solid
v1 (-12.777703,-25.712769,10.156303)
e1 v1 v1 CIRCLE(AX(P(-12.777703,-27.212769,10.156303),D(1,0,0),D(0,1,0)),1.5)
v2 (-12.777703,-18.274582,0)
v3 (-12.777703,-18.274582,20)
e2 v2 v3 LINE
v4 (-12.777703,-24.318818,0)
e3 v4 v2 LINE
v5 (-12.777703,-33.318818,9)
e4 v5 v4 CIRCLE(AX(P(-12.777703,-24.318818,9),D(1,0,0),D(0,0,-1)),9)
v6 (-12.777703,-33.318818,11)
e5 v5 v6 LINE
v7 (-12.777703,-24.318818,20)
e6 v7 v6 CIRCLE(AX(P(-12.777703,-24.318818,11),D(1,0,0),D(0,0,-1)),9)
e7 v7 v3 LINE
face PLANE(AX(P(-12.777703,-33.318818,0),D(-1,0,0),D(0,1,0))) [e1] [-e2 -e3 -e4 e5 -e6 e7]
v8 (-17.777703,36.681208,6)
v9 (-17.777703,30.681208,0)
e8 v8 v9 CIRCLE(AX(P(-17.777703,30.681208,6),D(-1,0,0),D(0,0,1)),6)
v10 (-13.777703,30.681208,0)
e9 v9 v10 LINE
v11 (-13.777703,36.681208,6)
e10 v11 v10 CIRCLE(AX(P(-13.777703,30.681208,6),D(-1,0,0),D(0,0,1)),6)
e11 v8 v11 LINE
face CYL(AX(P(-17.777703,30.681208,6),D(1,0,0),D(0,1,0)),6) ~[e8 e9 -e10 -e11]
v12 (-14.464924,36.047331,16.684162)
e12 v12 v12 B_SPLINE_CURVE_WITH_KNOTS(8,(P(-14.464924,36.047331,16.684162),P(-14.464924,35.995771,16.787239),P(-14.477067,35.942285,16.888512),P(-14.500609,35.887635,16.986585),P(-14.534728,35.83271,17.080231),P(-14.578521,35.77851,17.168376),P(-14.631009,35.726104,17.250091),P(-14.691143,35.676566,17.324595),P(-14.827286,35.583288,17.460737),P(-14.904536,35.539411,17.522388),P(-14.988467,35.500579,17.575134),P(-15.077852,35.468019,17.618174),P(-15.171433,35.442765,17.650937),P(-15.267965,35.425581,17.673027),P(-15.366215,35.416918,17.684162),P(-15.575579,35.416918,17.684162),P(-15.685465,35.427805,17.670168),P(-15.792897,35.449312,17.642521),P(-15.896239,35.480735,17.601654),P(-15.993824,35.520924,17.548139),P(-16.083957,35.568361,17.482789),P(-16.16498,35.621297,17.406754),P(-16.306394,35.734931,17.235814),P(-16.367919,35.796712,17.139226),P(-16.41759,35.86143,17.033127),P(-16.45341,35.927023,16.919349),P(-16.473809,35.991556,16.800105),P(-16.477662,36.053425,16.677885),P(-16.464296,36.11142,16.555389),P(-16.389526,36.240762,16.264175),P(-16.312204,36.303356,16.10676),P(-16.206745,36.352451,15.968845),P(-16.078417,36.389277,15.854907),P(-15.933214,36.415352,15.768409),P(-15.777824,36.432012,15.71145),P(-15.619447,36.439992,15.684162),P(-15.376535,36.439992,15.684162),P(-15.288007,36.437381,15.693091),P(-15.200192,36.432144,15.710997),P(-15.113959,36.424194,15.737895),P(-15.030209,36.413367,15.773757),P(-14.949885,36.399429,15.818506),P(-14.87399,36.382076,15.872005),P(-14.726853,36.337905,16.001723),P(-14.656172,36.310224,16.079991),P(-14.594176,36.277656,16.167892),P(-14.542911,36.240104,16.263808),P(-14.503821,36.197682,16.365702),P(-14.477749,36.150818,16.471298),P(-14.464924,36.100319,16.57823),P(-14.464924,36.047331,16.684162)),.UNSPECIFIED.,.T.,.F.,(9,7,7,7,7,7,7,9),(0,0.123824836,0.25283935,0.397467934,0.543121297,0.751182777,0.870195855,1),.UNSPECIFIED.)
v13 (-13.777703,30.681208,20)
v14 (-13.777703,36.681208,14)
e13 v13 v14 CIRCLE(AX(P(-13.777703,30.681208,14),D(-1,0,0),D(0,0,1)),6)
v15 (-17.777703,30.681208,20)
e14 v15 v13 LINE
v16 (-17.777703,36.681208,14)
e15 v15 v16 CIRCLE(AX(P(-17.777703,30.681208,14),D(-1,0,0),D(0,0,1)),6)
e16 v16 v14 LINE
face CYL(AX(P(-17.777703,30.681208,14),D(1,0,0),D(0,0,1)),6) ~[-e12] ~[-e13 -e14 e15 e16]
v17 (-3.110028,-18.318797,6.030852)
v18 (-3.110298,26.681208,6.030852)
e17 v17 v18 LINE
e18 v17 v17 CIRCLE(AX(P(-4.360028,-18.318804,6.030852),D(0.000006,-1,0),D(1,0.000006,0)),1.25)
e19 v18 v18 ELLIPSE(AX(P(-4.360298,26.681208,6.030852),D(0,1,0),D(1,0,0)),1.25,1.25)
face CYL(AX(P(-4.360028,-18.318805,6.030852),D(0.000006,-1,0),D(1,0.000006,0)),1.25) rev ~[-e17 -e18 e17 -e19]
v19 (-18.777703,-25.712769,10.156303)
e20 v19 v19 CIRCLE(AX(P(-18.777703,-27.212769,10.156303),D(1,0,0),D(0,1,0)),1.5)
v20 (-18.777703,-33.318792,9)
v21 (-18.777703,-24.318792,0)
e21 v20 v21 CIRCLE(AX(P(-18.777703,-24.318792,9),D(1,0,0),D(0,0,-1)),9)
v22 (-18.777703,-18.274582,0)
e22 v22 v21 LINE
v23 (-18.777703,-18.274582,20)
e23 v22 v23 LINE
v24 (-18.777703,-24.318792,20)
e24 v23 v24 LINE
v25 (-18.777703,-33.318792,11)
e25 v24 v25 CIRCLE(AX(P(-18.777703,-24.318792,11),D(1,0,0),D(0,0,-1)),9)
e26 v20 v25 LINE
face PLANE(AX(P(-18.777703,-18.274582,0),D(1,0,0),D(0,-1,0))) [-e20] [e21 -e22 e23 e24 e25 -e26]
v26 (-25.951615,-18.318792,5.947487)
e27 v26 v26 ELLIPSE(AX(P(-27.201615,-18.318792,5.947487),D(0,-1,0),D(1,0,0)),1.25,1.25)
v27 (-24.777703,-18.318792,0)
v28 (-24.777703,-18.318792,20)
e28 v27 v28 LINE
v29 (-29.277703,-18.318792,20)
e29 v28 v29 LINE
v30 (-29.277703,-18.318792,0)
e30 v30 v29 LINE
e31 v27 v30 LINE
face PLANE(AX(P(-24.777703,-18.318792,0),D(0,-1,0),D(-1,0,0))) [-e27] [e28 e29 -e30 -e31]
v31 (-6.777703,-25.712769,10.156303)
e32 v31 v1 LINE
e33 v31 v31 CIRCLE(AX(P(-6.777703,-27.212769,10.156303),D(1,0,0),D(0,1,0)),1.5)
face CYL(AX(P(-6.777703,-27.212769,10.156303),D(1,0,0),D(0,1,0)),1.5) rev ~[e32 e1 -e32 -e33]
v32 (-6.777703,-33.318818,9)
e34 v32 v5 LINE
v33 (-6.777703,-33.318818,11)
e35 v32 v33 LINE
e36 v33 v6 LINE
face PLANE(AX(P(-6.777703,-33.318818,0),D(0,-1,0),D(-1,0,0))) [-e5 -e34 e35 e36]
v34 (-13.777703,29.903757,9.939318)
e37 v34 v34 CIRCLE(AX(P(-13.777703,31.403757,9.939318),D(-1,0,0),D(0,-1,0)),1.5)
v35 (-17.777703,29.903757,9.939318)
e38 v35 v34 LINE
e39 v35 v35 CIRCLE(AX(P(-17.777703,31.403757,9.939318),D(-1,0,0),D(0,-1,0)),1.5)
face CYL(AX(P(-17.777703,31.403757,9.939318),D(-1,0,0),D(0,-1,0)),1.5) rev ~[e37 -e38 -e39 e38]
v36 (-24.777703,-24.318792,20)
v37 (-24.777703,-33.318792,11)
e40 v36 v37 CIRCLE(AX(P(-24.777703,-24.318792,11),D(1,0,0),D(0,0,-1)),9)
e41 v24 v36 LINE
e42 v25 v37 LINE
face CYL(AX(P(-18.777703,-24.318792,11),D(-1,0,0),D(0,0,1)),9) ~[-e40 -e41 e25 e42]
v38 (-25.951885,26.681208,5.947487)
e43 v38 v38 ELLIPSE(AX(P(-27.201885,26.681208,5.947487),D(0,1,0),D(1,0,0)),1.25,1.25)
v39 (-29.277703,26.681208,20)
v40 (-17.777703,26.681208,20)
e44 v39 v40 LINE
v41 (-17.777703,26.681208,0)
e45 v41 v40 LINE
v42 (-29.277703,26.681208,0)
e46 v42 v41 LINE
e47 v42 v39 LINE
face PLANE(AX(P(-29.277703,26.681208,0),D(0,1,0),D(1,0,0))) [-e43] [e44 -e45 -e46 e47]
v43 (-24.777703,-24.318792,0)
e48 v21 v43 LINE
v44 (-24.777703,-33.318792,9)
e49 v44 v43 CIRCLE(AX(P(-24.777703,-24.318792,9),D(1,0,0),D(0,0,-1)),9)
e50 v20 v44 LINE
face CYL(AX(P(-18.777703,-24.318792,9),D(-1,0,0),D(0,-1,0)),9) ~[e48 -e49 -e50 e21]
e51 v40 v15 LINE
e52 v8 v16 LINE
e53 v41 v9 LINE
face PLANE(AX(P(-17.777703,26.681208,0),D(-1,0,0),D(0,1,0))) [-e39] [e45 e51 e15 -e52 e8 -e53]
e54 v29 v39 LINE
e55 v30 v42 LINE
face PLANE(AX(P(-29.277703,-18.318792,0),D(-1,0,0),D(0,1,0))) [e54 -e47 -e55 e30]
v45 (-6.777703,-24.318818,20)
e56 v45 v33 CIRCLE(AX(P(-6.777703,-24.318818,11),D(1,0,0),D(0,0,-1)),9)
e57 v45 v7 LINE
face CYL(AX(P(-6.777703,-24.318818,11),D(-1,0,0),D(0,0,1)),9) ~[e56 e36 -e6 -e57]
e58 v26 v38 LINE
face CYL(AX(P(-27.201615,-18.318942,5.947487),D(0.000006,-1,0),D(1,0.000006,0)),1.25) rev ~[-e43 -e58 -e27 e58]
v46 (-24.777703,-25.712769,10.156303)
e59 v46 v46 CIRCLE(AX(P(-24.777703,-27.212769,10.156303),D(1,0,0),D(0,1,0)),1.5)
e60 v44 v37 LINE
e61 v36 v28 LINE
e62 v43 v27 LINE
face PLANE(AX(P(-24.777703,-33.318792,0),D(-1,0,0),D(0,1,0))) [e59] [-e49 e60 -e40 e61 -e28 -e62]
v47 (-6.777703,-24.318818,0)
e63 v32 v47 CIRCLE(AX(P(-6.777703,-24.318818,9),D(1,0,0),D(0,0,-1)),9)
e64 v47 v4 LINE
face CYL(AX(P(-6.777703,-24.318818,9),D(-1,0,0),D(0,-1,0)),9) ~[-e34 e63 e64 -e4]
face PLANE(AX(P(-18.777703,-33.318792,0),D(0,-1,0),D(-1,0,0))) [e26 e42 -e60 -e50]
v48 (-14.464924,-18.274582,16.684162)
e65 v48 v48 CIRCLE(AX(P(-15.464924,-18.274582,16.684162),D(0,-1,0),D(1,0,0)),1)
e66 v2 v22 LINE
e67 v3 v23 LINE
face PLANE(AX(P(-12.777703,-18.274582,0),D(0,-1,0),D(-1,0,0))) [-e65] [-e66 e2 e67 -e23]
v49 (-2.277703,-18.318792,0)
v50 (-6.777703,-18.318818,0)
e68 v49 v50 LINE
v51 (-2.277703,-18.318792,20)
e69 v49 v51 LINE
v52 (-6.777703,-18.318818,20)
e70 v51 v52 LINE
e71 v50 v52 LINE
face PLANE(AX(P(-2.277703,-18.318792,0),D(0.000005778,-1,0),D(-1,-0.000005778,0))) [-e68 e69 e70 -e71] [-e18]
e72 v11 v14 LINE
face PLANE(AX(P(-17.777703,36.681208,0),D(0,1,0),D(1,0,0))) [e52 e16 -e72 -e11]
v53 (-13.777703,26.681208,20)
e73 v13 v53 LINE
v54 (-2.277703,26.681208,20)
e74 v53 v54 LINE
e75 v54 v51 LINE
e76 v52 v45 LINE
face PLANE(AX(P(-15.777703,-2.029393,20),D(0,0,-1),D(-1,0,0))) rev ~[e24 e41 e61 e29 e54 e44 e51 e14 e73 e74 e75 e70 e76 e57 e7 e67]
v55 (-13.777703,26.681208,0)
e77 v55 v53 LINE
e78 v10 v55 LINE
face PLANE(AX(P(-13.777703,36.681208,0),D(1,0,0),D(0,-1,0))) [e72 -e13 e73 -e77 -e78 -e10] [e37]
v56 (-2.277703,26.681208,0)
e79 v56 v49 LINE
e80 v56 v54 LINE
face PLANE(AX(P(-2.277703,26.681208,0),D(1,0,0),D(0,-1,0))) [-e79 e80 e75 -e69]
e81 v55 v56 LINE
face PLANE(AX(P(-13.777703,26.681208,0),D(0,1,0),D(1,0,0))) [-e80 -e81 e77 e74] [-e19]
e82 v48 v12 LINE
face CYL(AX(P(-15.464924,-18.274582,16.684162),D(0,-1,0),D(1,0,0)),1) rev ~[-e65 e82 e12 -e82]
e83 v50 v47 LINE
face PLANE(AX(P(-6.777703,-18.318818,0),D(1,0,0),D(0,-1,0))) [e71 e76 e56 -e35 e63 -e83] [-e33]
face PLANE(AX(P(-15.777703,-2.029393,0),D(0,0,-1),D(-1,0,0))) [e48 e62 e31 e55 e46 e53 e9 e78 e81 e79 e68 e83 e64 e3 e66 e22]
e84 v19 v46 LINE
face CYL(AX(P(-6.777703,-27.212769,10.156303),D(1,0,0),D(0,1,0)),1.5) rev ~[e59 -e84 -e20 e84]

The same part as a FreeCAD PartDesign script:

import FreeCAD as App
import Part
import Sketcher

V = App.Vector


def edges_at(feature, points):
    """Names of the edges that pass closest to the given points."""
    edges = feature.Shape.Edges
    near = lambda p: min(range(len(edges)), key=lambda i: edges[i].distToShape(Part.Vertex(*p))[0])
    return sorted({f"Edge{near(p) + 1}" for p in points})


def add_polygon(sketch, points):
    """Adds a closed chain of lines whose ends are joined by coincident constraints."""
    first, n = sketch.GeometryCount, len(points)
    for a, b in zip(points, points[1:] + points[:1]):
        sketch.addGeometry(Part.LineSegment(App.Vector(*a, 0), App.Vector(*b, 0)), False)
    for i in range(n):
        sketch.addConstraint(Sketcher.Constraint("Coincident", first + i, 2, first + (i + 1) % n, 1))

doc = App.newDocument("Part")
params = doc.addObject("Spreadsheet::Sheet", "Params")
for row, (alias, value) in enumerate([
    ("sketch1_width", "6 mm"),
    ("sketch1_width2", "4 mm"),
    ("sketch1_height", "45 mm"),
    ("sketch1_height2", "15 mm"),
    ("sketch1_height3", "10 mm"),
    ("pad1_length", "20 mm"),
    ("sketch2_diameter", "3 mm"),
    ("fillet_radius", "9 mm"),
    ("fillet2_radius", "9 mm"),
    ("fillet3_radius", "9 mm"),
    ("fillet4_radius", "9 mm"),
    ("fillet5_radius", "6 mm"),
    ("fillet6_radius", "6 mm"),
    ("sketch3_diameter", "3 mm"),
    ("sketch4_diameter", "2.5 mm"),
    ("sketch5_diameter", "2 mm"),
], start=1):
    params.set(f"A{row}", alias)
    params.set(f"B{row}", "=" + value)
    params.setAlias(f"B{row}", alias)

body = doc.addObject("PartDesign::Body", "Body")

sketch1 = doc.addObject("Sketcher::SketchObject", "Sketch")
body.addObject(sketch1)
sketch1.AttachmentSupport = (doc.XY_Plane, [""])
sketch1.MapMode = "FlatFace"
add_polygon(sketch1, [(-17.8, 26.7), (-29.3, 26.7), (-29.3, -18.3), (-24.8, -18.3), (-24.8, -33.3), (-18.8, -33.3), (-18.8, -18.3), (-12.8, -18.3), (-12.8, -33.3), (-6.8, -33.3), (-6.8, -18.3), (-2.3, -18.3), (-2.3, 26.7), (-13.8, 26.7), (-13.8, 36.7), (-17.8, 36.7)])
sketch1.addConstraint(Sketcher.Constraint("Horizontal", 0))
sketch1.addConstraint(Sketcher.Constraint("Vertical", 1))
sketch1.addConstraint(Sketcher.Constraint("Horizontal", 2))
sketch1.addConstraint(Sketcher.Constraint("Vertical", 3))
sketch1.addConstraint(Sketcher.Constraint("Horizontal", 4))
sketch1.addConstraint(Sketcher.Constraint("Vertical", 5))
sketch1.addConstraint(Sketcher.Constraint("Horizontal", 6))
sketch1.addConstraint(Sketcher.Constraint("Vertical", 7))
sketch1.addConstraint(Sketcher.Constraint("Horizontal", 8))
sketch1.addConstraint(Sketcher.Constraint("Vertical", 9))
sketch1.addConstraint(Sketcher.Constraint("Vertical", 11))
sketch1.addConstraint(Sketcher.Constraint("Horizontal", 12))
sketch1.addConstraint(Sketcher.Constraint("Vertical", 13))
sketch1.addConstraint(Sketcher.Constraint("Horizontal", 14))
sketch1.addConstraint(Sketcher.Constraint("Vertical", 15))
sketch1.addConstraint(Sketcher.Constraint("Horizontal", 2, 2, 10, 2))
sketch1.addConstraint(Sketcher.Constraint("Horizontal", 0, 2, 11, 2))
sketch1.addConstraint(Sketcher.Constraint("Equal", 4, 6))
sketch1.addConstraint(Sketcher.Constraint("Equal", 6, 8))
sketch1.addConstraint(Sketcher.Constraint("Equal", 0, 12))
sketch1.addConstraint(Sketcher.Constraint("Equal", 3, 9))
sketch1.addConstraint(Sketcher.Constraint("DistanceX", 4, 1, 4, 2, 6.0))
sketch1.addConstraint(Sketcher.Constraint("DistanceX", 14, 2, 14, 1, 4.0))
sketch1.addConstraint(Sketcher.Constraint("DistanceY", 1, 2, 1, 1, 45.0))
sketch1.addConstraint(Sketcher.Constraint("DistanceY", 3, 2, 3, 1, 15.0))
sketch1.addConstraint(Sketcher.Constraint("DistanceY", 13, 1, 13, 2, 10.0))
sketch1.addConstraint(Sketcher.Constraint("DistanceX", 0, 2, 0, 1, 11.5))
sketch1.addConstraint(Sketcher.Constraint("DistanceX", 2, 1, 2, 2, 4.5))
sketch1.addConstraint(Sketcher.Constraint("DistanceY", 5, 1, 5, 2, 15.04421))
sketch1.addConstraint(Sketcher.Constraint("DistanceY", 7, 2, 7, 1, 15.044236))
sketch1.addConstraint(Sketcher.Constraint("DistanceY", -1, 1, 0, 2, 26.681208))
sketch1.addConstraint(Sketcher.Constraint("DistanceX", 0, 2, -1, 1, 29.277703))
sketch1.setExpression("Constraints[37]", "Params.sketch1_width")
sketch1.setExpression("Constraints[38]", "Params.sketch1_width2")
sketch1.setExpression("Constraints[39]", "Params.sketch1_height")
sketch1.setExpression("Constraints[40]", "Params.sketch1_height2")
sketch1.setExpression("Constraints[41]", "Params.sketch1_height3")
pad1 = doc.addObject("PartDesign::Pad", "Pad")
body.addObject(pad1)
pad1.Profile = sketch1
pad1.setExpression("Length", "Params.pad1_length")

sketch2 = doc.addObject("Sketcher::SketchObject", "Sketch001")
body.addObject(sketch2)
sketch2.AttachmentSupport = (doc.YZ_Plane, [""])
sketch2.MapMode = "FlatFace"
sketch2.AttachmentOffset = App.Placement(V(0, 0, -6.777703), App.Rotation())
sketch2.addGeometry(Part.Circle(V(-27.2, 10.2, 0), V(0, 0, 1), 1.5), False)
sketch2.addConstraint(Sketcher.Constraint("Diameter", 0, 3.0))
sketch2.addConstraint(Sketcher.Constraint("DistanceX", 0, 3, -1, 1, 27.212769))
sketch2.addConstraint(Sketcher.Constraint("DistanceY", -1, 1, 0, 3, 10.156303))
sketch2.setExpression("Constraints[0]", "Params.sketch2_diameter")
pocket1 = doc.addObject("PartDesign::Pocket", "Pocket")
body.addObject(pocket1)
pocket1.Profile = sketch2
pocket1.Type = "ThroughAll"
doc.recompute()

fillet = doc.addObject("PartDesign::Fillet", "Fillet")
body.addObject(fillet)
fillet.Base = (pocket1, edges_at(pocket1, [(-21.778, -33.319, 20)]))
fillet.setExpression("Radius", "Params.fillet_radius")
doc.recompute()

fillet2 = doc.addObject("PartDesign::Fillet", "Fillet001")
body.addObject(fillet2)
fillet2.Base = (fillet, edges_at(fillet, [(-21.778, -33.319, 0)]))
fillet2.setExpression("Radius", "Params.fillet2_radius")
doc.recompute()

fillet3 = doc.addObject("PartDesign::Fillet", "Fillet002")
body.addObject(fillet3)
fillet3.Base = (fillet2, edges_at(fillet2, [(-9.778, -33.319, 20)]))
fillet3.setExpression("Radius", "Params.fillet3_radius")
doc.recompute()

fillet4 = doc.addObject("PartDesign::Fillet", "Fillet003")
body.addObject(fillet4)
fillet4.Base = (fillet3, edges_at(fillet3, [(-9.778, -33.319, 0)]))
fillet4.setExpression("Radius", "Params.fillet4_radius")
doc.recompute()

fillet5 = doc.addObject("PartDesign::Fillet", "Fillet004")
body.addObject(fillet5)
fillet5.Base = (fillet4, edges_at(fillet4, [(-15.778, 36.681, 20)]))
fillet5.setExpression("Radius", "Params.fillet5_radius")
doc.recompute()

fillet6 = doc.addObject("PartDesign::Fillet", "Fillet005")
body.addObject(fillet6)
fillet6.Base = (fillet5, edges_at(fillet5, [(-15.778, 36.681, 0)]))
fillet6.setExpression("Radius", "Params.fillet6_radius")

sketch3 = doc.addObject("Sketcher::SketchObject", "Sketch002")
body.addObject(sketch3)
sketch3.AttachmentSupport = (doc.YZ_Plane, [""])
sketch3.MapMode = "FlatFace"
sketch3.AttachmentOffset = App.Placement(V(0, 0, -17.777703), App.Rotation())
sketch3.addGeometry(Part.Circle(V(31.4, 9.9, 0), V(0, 0, 1), 1.5), False)
sketch3.addConstraint(Sketcher.Constraint("Diameter", 0, 3.0))
sketch3.addConstraint(Sketcher.Constraint("DistanceX", -1, 1, 0, 3, 31.403757))
sketch3.addConstraint(Sketcher.Constraint("DistanceY", -1, 1, 0, 3, 9.939318))
sketch3.setExpression("Constraints[0]", "Params.sketch3_diameter")
pocket2 = doc.addObject("PartDesign::Pocket", "Pocket001")
body.addObject(pocket2)
pocket2.Profile = sketch3
pocket2.Type = "ThroughAll"
pocket2.Reversed = True

sketch4 = doc.addObject("Sketcher::SketchObject", "Sketch003")
body.addObject(sketch4)
sketch4.AttachmentSupport = (doc.XZ_Plane, [""])
sketch4.MapMode = "FlatFace"
sketch4.AttachmentOffset = App.Placement(V(0, 0, 18.318779), App.Rotation())
sketch4.addGeometry(Part.Circle(V(-27.2, 5.9, 0), V(0, 0, 1), 1.2), False)
sketch4.addGeometry(Part.Circle(V(-4.4, 6, 0), V(0, 0, 1), 1.2), False)
sketch4.addConstraint(Sketcher.Constraint("Equal", 0, 1))
sketch4.addConstraint(Sketcher.Constraint("Diameter", 0, 2.5))
sketch4.addConstraint(Sketcher.Constraint("DistanceX", 0, 3, -1, 1, 27.201615))
sketch4.addConstraint(Sketcher.Constraint("DistanceY", -1, 1, 0, 3, 5.947487))
sketch4.addConstraint(Sketcher.Constraint("DistanceX", 1, 3, -1, 1, 4.360028))
sketch4.addConstraint(Sketcher.Constraint("DistanceY", -1, 1, 1, 3, 6.030852))
sketch4.setExpression("Constraints[1]", "Params.sketch4_diameter")
pocket3 = doc.addObject("PartDesign::Pocket", "Pocket002")
body.addObject(pocket3)
pocket3.Profile = sketch4
pocket3.Type = "ThroughAll"

sketch5 = doc.addObject("Sketcher::SketchObject", "Sketch004")
body.addObject(sketch5)
sketch5.AttachmentSupport = (doc.XZ_Plane, [""])
sketch5.MapMode = "FlatFace"
sketch5.AttachmentOffset = App.Placement(V(0, 0, 18.274582), App.Rotation())
sketch5.addGeometry(Part.Circle(V(-15.5, 16.7, 0), V(0, 0, 1), 1), False)
sketch5.addConstraint(Sketcher.Constraint("Diameter", 0, 2.0))
sketch5.addConstraint(Sketcher.Constraint("DistanceX", 0, 3, -1, 1, 15.464924))
sketch5.addConstraint(Sketcher.Constraint("DistanceY", -1, 1, 0, 3, 16.684162))
sketch5.setExpression("Constraints[0]", "Params.sketch5_diameter")
pocket4 = doc.addObject("PartDesign::Pocket", "Pocket003")
body.addObject(pocket4)
pocket4.Profile = sketch5
pocket4.Type = "ThroughAll"

doc.recompute()
